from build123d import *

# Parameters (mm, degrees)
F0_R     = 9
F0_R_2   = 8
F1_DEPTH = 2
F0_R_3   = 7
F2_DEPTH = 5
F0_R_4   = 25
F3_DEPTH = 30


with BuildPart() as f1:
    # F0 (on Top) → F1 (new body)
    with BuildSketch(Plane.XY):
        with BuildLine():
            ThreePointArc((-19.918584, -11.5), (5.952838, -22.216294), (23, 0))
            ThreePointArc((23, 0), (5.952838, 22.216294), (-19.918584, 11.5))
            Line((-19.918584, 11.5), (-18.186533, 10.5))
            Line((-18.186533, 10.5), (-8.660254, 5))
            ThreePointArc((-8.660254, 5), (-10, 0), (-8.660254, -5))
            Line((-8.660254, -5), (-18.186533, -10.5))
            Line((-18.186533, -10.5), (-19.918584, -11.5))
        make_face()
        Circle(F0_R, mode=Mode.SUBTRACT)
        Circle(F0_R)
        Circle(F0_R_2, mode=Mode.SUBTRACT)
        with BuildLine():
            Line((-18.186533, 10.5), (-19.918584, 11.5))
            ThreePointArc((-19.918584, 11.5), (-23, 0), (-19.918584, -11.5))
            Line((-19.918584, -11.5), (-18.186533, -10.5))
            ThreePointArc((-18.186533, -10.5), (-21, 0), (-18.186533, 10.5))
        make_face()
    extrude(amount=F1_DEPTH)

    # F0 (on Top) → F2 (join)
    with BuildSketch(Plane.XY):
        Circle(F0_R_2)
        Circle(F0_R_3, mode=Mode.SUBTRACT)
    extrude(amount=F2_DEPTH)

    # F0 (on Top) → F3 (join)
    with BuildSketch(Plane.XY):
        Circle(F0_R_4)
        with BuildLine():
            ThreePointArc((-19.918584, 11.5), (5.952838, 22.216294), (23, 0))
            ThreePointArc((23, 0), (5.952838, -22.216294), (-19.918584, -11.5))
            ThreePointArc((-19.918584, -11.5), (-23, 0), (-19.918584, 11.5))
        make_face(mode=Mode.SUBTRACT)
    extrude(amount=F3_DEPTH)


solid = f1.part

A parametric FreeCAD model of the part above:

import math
import FreeCAD as App
import Part
import Sketcher
Q = App.Units.Quantity

doc = App.newDocument("Part")
params = doc.addObject("Spreadsheet::Sheet", "Params")
for row, (alias, value) in enumerate([
    ("sketch1_diameter", "16 mm"),
    ("sketch1_radius", "23 mm"),
    ("sketch1_radius2", "10 mm"),
    ("sketch1_length", "11 mm"),
    ("pad1_length", "2 mm"),
    ("sketch2_diameter", "16 mm"),
    ("sketch2_diameter2", "14 mm"),
    ("pad2_length", "5 mm"),
    ("sketch3_diameter", "50 mm"),
    ("sketch3_radius", "22.999998 mm"),
    ("pad3_length", "30 mm"),
], start=1):
    params.set(f"A{row}", alias)
    params.set(f"B{row}", "=" + value)
    params.setAlias(f"B{row}", alias)

body = doc.addObject("PartDesign::Body", "Body")

# Sketch on XY plane
sketch1 = body.newObject("Sketcher::SketchObject", "Sketch")
sketch1.AttachmentSupport = (doc.getObject("XY_Plane"), [""])
sketch1.MapMode = "FlatFace"
sketch1.addGeometry([
    Part.ArcOfCircle(Part.Circle(App.Vector(0, 0, 0), App.Vector(0, 0, 1), 23), math.radians(-150), math.radians(0)),  # 0
    Part.ArcOfCircle(Part.Circle(App.Vector(0, 0, 0), App.Vector(0, 0, 1), 23), math.radians(0), math.radians(150)),  # 1
    Part.ArcOfCircle(Part.Circle(App.Vector(0, 0, 0), App.Vector(0, 0, 1), 23), math.radians(150), math.radians(210)),  # 2
    Part.LineSegment(App.Vector(-9, -5, 0), App.Vector(-18, -10, 0)),  # 3
    Part.ArcOfCircle(Part.Circle(App.Vector(0, 0, 0), App.Vector(0, 0, 1), 21), math.radians(150), math.radians(210)),  # 4
    Part.LineSegment(App.Vector(-18, 10, 0), App.Vector(-9, 5, 0)),  # 5
    Part.ArcOfCircle(Part.Circle(App.Vector(0, 0, 0), App.Vector(0, 0, 1), 10), math.radians(150), math.radians(210)),  # 6
    Part.Circle(App.Vector(0, 0, 0), App.Vector(0, 0, 1), 8),  # 7
], False)
sketch1.addConstraint([
    Sketcher.Constraint("Tangent", 0, 2, 1, 1),
    Sketcher.Constraint("Tangent", 1, 2, 2, 1),
    Sketcher.Constraint("Tangent", 2, 2, 0, 1),
    Sketcher.Constraint("Coincident", 3, 2, 4, 2),
    Sketcher.Constraint("Coincident", 4, 1, 5, 1),
    Sketcher.Constraint("Coincident", 5, 2, 6, 1),
    Sketcher.Constraint("Coincident", 6, 2, 3, 1),
    Sketcher.Constraint("Coincident", 0, 3, -1, 1),
    Sketcher.Constraint("Coincident", 4, 3, -1, 1),
    Sketcher.Constraint("Coincident", 6, 3, -1, 1),
    Sketcher.Constraint("Coincident", 7, 3, -1, 1),
    Sketcher.Constraint("PointOnObject", 0, 2, -1),
    Sketcher.Constraint("Vertical", 1, 2, 2, 2),
    Sketcher.Constraint("Vertical", 3, 2, 4, 1),
    Sketcher.Constraint("Vertical", 5, 2, 6, 2),
    Sketcher.Constraint("Diameter", 7, 16.0),
    Sketcher.Constraint("Radius", 0, 23.0),
    Sketcher.Constraint("Radius", 6, 10.0),
    Sketcher.Constraint("Angle", 3, Q("-149.999999 deg")),
    Sketcher.Constraint("Distance", 3, 11.0),
    Sketcher.Constraint("DistanceY", -1, 1, 5, 2, 5.0),
    Sketcher.Constraint("DistanceY", 2, 2, 3, 2, 1.0),
])
sketch1.setExpression("Constraints[15]", "Params.sketch1_diameter")
sketch1.setExpression("Constraints[16]", "Params.sketch1_radius")
sketch1.setExpression("Constraints[17]", "Params.sketch1_radius2")
sketch1.setExpression("Constraints[19]", "Params.sketch1_length")
pad1 = body.newObject("PartDesign::Pad", "Pad")
pad1.Profile = sketch1
pad1.setExpression("Length", "Params.pad1_length")

# Sketch on XY plane
sketch2 = body.newObject("Sketcher::SketchObject", "Sketch001")
sketch2.AttachmentSupport = (doc.getObject("XY_Plane"), [""])
sketch2.MapMode = "FlatFace"
sketch2.addGeometry([
    Part.Circle(App.Vector(0, 0, 0), App.Vector(0, 0, 1), 8),
    Part.Circle(App.Vector(0, 0, 0), App.Vector(0, 0, 1), 7),
], False)
sketch2.addConstraint([
    Sketcher.Constraint("Coincident", 0, 3, -1, 1),
    Sketcher.Constraint("Coincident", 1, 3, -1, 1),
    Sketcher.Constraint("Diameter", 0, 16.0),
    Sketcher.Constraint("Diameter", 1, 14.0),
])
sketch2.setExpression("Constraints[2]", "Params.sketch2_diameter")
sketch2.setExpression("Constraints[3]", "Params.sketch2_diameter2")
pad2 = body.newObject("PartDesign::Pad", "Pad001")
pad2.Profile = sketch2
pad2.setExpression("Length", "Params.pad2_length")

# Sketch on XY plane
sketch3 = body.newObject("Sketcher::SketchObject", "Sketch002")
sketch3.AttachmentSupport = (doc.getObject("XY_Plane"), [""])
sketch3.MapMode = "FlatFace"
sketch3.addGeometry([
    Part.Circle(App.Vector(0, 0, 0), App.Vector(0, 0, 1), 25),
    Part.ArcOfCircle(Part.Circle(App.Vector(0, 0, 0), App.Vector(0, 0, 1), 23), math.radians(150), math.radians(210)),
    Part.ArcOfCircle(Part.Circle(App.Vector(0, 0, 0), App.Vector(0, 0, 1), 23), math.radians(0), math.radians(150)),
    Part.ArcOfCircle(Part.Circle(App.Vector(0, 0, 0), App.Vector(0, 0, 1), 23), math.radians(-150), math.radians(0)),
], False)
sketch3.addConstraint([
    Sketcher.Constraint("Tangent", 1, 1, 2, 2),
    Sketcher.Constraint("Tangent", 2, 1, 3, 2),
    Sketcher.Constraint("Tangent", 3, 1, 1, 2),
    Sketcher.Constraint("Coincident", 0, 3, -1, 1),
    Sketcher.Constraint("Coincident", 1, 3, -1, 1),
    Sketcher.Constraint("PointOnObject", 2, 1, -1),
    Sketcher.Constraint("Vertical", 1, 1, 3, 1),
    Sketcher.Constraint("Diameter", 0, 50.0),
    Sketcher.Constraint("Radius", 1, 22.999998),
    Sketcher.Constraint("DistanceY", 3, 1, 1, 1, 23.0),
])
sketch3.setExpression("Constraints[7]", "Params.sketch3_diameter")
sketch3.setExpression("Constraints[8]", "Params.sketch3_radius")
pad3 = body.newObject("PartDesign::Pad", "Pad002")
pad3.Profile = sketch3
pad3.setExpression("Length", "Params.pad3_length")

doc.recompute()
